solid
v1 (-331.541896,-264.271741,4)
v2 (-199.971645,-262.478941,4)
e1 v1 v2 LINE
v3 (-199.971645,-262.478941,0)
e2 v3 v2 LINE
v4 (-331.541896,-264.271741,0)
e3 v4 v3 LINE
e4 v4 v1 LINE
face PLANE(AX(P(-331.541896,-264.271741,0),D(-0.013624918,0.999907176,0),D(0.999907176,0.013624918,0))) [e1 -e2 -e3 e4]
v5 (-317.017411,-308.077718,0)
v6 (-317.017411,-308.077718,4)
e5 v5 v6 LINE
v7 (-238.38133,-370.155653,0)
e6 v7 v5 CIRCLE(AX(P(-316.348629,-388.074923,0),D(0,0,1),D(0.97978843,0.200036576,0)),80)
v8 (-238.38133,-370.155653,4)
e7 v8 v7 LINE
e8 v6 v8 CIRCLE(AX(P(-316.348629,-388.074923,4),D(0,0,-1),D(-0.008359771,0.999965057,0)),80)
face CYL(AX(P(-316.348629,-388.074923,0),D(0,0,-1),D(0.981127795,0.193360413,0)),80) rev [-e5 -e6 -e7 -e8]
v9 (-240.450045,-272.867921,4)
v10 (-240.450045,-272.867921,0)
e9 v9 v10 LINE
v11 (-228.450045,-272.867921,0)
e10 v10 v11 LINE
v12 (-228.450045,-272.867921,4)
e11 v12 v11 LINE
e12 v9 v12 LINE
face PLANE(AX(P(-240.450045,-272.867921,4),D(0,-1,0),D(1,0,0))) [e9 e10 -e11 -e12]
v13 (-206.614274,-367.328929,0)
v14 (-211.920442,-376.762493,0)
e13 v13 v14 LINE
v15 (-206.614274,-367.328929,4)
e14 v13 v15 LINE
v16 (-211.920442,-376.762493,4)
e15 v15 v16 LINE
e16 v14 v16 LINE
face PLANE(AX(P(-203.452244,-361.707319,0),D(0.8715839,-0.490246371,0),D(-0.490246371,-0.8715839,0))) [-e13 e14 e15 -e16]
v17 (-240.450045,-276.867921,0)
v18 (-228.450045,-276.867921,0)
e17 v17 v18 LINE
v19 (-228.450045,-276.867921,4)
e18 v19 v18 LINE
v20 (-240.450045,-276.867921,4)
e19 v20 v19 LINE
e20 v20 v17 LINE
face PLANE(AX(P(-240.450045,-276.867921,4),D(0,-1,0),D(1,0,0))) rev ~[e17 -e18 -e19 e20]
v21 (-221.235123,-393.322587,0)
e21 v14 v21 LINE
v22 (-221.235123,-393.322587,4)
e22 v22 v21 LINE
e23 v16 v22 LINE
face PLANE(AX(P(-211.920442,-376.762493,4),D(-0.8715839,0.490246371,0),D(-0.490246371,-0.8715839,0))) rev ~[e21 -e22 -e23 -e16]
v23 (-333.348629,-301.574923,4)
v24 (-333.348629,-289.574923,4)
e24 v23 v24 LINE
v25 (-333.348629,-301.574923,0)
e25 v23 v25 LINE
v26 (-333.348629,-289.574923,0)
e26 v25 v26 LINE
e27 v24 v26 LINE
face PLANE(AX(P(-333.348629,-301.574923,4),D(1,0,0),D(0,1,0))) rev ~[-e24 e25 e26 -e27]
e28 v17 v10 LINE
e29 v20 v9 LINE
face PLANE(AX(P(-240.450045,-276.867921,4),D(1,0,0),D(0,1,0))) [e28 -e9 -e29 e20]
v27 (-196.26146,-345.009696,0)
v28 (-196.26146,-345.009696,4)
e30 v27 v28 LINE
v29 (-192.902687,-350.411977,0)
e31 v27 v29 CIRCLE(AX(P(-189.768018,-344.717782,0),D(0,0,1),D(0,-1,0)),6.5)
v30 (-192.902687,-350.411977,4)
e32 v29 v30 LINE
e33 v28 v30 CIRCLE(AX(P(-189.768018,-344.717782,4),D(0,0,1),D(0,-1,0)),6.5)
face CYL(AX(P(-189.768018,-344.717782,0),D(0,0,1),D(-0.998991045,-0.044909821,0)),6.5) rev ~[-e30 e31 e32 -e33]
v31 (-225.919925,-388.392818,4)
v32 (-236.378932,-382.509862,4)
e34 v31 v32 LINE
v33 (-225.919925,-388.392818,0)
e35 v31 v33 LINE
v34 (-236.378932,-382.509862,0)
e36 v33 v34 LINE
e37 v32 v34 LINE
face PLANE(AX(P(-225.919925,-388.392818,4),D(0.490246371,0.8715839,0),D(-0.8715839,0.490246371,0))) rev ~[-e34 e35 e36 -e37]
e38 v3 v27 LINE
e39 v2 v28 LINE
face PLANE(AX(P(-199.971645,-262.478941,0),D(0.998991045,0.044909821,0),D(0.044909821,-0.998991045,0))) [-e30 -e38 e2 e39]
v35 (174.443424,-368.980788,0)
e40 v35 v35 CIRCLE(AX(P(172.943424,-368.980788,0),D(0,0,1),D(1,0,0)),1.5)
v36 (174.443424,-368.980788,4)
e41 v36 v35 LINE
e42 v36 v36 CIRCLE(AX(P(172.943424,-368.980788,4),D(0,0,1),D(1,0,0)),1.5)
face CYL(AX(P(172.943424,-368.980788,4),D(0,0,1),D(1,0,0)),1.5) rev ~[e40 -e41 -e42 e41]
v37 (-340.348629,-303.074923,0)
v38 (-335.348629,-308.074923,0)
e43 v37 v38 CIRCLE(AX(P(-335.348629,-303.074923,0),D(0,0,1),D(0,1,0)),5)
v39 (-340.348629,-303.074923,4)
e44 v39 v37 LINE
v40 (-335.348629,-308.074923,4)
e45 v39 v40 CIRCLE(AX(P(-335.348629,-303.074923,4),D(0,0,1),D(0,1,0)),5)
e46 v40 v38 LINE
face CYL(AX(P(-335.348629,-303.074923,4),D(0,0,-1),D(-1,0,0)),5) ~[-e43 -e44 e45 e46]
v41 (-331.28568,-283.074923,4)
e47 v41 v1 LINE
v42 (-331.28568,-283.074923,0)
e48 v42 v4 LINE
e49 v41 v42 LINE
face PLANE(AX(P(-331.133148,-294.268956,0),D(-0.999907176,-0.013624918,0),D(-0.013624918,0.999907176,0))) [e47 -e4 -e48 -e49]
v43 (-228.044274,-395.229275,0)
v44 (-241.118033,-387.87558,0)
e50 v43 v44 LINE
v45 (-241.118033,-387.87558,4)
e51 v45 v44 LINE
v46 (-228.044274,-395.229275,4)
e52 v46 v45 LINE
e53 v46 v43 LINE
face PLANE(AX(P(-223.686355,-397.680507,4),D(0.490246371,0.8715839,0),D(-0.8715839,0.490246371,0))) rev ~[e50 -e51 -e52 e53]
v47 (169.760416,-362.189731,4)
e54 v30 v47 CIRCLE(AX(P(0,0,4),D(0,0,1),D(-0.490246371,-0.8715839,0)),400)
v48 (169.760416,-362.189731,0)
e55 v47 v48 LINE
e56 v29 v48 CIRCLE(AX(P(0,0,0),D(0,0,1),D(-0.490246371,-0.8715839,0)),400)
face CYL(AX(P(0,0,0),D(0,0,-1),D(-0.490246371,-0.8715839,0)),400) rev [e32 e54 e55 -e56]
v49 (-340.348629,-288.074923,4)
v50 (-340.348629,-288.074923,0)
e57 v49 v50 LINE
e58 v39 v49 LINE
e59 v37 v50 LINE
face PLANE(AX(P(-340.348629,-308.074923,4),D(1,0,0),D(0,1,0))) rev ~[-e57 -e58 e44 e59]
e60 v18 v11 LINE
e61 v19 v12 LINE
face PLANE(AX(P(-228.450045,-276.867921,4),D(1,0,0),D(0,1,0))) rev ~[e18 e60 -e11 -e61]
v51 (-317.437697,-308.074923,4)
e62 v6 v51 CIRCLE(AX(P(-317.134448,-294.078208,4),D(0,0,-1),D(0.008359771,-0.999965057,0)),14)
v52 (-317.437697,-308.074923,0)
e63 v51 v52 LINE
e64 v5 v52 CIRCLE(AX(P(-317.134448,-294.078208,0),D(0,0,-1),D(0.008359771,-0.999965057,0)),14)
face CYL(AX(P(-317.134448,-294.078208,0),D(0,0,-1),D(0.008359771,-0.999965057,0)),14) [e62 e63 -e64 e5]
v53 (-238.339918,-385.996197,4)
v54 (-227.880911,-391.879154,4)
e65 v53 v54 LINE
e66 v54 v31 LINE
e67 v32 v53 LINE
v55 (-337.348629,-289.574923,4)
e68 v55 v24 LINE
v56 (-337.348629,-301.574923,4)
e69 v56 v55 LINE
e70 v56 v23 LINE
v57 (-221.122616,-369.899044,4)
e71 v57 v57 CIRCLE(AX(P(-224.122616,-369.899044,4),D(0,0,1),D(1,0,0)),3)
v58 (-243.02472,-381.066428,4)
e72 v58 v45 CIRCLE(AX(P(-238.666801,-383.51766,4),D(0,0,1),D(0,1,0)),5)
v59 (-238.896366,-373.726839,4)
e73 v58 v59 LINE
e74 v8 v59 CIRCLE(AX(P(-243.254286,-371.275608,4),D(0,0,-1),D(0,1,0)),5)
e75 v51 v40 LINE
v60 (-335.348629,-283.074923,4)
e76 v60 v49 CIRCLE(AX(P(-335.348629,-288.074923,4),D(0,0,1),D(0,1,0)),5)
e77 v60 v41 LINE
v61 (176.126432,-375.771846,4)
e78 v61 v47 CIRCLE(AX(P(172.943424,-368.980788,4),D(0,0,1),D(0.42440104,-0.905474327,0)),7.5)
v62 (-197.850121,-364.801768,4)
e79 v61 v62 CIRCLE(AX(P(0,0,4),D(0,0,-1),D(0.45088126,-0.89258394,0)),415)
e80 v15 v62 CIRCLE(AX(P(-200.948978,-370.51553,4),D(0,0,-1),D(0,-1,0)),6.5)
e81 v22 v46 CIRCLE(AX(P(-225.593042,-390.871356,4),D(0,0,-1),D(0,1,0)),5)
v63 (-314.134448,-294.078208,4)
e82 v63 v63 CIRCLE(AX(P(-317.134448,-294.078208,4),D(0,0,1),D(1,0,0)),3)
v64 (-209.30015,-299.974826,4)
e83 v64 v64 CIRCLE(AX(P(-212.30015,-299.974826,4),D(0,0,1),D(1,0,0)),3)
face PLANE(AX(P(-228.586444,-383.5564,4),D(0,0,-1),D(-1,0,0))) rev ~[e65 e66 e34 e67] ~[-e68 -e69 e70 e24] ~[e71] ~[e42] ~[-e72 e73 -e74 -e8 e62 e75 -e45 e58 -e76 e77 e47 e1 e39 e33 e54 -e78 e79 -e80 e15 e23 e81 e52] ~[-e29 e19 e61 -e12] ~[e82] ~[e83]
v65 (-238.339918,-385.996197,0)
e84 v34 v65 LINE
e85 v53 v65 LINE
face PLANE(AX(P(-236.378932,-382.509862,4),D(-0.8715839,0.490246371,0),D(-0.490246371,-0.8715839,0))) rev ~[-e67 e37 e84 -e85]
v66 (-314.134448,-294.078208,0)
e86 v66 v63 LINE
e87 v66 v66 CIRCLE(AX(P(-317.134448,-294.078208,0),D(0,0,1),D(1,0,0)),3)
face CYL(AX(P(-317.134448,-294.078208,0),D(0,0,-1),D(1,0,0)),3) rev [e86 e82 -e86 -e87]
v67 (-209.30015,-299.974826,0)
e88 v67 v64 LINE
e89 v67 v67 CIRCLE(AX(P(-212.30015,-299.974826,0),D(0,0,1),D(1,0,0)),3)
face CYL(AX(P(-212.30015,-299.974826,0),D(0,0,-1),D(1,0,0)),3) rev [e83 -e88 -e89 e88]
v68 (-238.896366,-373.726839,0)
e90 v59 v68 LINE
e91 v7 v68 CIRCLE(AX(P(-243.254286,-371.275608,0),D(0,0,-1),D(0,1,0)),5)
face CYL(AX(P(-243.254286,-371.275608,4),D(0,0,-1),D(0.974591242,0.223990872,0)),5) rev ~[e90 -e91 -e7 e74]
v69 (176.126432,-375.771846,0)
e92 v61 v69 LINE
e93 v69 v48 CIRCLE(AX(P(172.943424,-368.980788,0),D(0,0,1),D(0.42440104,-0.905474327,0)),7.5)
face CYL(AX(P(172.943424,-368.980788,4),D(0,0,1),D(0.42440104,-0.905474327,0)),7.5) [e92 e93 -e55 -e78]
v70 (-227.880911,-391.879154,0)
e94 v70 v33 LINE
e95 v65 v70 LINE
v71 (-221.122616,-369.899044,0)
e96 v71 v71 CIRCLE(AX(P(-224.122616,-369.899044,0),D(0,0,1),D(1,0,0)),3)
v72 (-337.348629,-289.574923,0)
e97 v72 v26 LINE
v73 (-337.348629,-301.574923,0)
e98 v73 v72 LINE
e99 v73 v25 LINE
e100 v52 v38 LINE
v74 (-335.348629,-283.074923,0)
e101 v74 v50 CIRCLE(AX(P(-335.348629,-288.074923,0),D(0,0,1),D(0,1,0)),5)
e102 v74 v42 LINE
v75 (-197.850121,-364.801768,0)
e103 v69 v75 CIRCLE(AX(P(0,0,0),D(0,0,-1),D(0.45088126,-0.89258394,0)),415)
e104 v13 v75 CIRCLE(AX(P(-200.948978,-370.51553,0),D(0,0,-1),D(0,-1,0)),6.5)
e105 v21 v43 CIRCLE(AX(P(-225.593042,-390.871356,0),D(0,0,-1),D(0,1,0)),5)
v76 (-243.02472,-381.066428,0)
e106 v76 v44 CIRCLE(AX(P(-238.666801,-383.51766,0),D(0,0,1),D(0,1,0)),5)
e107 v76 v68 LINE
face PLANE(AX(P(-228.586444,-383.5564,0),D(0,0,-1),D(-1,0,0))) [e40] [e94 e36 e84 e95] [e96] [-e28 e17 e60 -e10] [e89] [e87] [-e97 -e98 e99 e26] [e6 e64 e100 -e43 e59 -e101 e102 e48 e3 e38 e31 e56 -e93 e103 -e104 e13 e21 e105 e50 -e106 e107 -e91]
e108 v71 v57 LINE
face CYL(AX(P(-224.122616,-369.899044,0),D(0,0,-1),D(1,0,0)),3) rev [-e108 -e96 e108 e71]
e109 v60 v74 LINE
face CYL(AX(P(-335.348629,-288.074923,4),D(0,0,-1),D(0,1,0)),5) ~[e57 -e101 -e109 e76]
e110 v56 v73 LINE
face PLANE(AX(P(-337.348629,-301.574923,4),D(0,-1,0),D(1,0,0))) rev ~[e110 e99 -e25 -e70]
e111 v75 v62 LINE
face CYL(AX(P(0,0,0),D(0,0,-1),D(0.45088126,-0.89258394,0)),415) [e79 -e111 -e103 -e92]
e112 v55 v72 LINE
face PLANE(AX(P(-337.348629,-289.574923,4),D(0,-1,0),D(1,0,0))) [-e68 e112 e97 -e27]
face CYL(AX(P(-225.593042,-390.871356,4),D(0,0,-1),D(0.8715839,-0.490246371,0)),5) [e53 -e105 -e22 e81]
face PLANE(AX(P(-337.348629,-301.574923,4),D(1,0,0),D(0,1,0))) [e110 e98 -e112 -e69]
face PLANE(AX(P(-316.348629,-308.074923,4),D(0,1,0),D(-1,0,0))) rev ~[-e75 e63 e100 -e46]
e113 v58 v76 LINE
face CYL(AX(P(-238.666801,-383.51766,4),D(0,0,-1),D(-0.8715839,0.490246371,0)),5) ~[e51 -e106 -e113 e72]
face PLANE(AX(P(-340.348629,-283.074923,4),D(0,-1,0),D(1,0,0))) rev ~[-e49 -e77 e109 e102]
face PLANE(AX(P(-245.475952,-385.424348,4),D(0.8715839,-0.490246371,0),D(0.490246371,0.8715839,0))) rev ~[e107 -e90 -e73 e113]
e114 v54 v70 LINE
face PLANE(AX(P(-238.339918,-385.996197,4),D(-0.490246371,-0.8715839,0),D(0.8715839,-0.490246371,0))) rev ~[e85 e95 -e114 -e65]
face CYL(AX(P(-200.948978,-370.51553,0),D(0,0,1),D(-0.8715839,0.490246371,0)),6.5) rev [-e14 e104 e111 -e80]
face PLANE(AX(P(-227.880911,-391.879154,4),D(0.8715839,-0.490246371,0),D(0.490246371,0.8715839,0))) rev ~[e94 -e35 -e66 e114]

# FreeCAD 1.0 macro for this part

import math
import FreeCAD as App
import Part
import Sketcher

V = App.Vector


def edges_at(feature, points):
    """Names of the edges that pass closest to the given points."""
    edges = feature.Shape.Edges
    near = lambda p: min(range(len(edges)), key=lambda i: edges[i].distToShape(Part.Vertex(*p))[0])
    return sorted({f"Edge{near(p) + 1}" for p in points})

doc = App.newDocument("Part")
body = doc.addObject("PartDesign::Body", "Body")

sketch1 = doc.addObject("Sketcher::SketchObject", "Sketch")
body.addObject(sketch1)
sketch1.AttachmentSupport = (doc.XY_Plane, [""])
sketch1.MapMode = "FlatFace"
sketch1.addGeometry([
    Part.LineSegment(V(-196.1, -348.6, 0), V(-200, -262.5, 0)),
    Part.LineSegment(V(-200, -262.5, 0), V(-331.5, -264.3, 0)),
    Part.LineSegment(V(-331.5, -264.3, 0), V(-331.1, -294.3, 0)),
    Part.ArcOfCircle(Part.Circle(V(-317.1, -294.1, 0), V(0, 0, 1), 14), math.radians(-179), math.radians(-90)),
    Part.ArcOfCircle(Part.Circle(V(-316.3, -388.1, 0), V(0, 0, 1), 80), math.radians(11), math.radians(90)),
    Part.ArcOfCircle(Part.Circle(V(-224.1, -369.9, 0), V(0, 0, 1), 14), math.radians(-169), math.radians(-29)),
    Part.LineSegment(V(-211.9, -376.8, 0), V(-203.5, -361.7, 0)),
    Part.ArcOfCircle(Part.Circle(V(0, 0, 0), V(0, 0, 1), 415), math.radians(-119), math.radians(-63)),
    Part.LineSegment(V(187.1, -370.4, 0), V(180.4, -357, 0)),
    Part.ArcOfCircle(Part.Circle(V(0, 0, 0), V(0, 0, 1), 400), math.radians(-119), math.radians(-63)),
    Part.Circle(V(-224.1, -369.9, 0), V(0, 0, 1), 3),
    Part.Circle(V(-212.3, -300, 0), V(0, 0, 1), 3),
    Part.Circle(V(-317.1, -294.1, 0), V(0, 0, 1), 3),
], False)
sketch1.addConstraint([
    Sketcher.Constraint("Coincident", 0, 2, 1, 1),
    Sketcher.Constraint("Coincident", 1, 2, 2, 1),
    Sketcher.Constraint("Tangent", 2, 2, 3, 1),
    Sketcher.Constraint("Tangent", 3, 2, 4, 2),
    Sketcher.Constraint("Tangent", 4, 1, 5, 1),
    Sketcher.Constraint("Tangent", 5, 2, 6, 1),
    Sketcher.Constraint("Coincident", 6, 2, 7, 1),
    Sketcher.Constraint("Coincident", 7, 2, 8, 1),
    Sketcher.Constraint("Coincident", 8, 2, 9, 2),
    Sketcher.Constraint("Coincident", 9, 1, 0, 1),
    Sketcher.Constraint("Coincident", 7, 3, -1, 1),
    Sketcher.Constraint("Coincident", 9, 3, -1, 1),
    Sketcher.Constraint("Coincident", 10, 3, 5, 3),
    Sketcher.Constraint("Coincident", 12, 3, 3, 3),
    Sketcher.Constraint("Equal", 3, 5),
    Sketcher.Constraint("Equal", 10, 11),
    Sketcher.Constraint("Equal", 11, 12),
    Sketcher.Constraint("Perpendicular", 1, 2),
    Sketcher.Constraint("Diameter", 10, 6.0),
    Sketcher.Constraint("Radius", 3, 14.0),
    Sketcher.Constraint("Radius", 4, 80.0),
    Sketcher.Constraint("Radius", 7, 415.0),
    Sketcher.Constraint("Radius", 9, 400.0),
    Sketcher.Constraint("Distance", 2, 30.0),
    Sketcher.Constraint("DistanceY", 1, 2, 0, 2, 1.7928),
    Sketcher.Constraint("Distance", 6, 17.273351),
    Sketcher.Constraint("DistanceX", 4, 3, -1, 1, 316.348629),
    Sketcher.Constraint("DistanceX", 11, 3, -1, 1, 212.30015),
    Sketcher.Constraint("DistanceY", 0, 2, -1, 1, 262.478941),
    Sketcher.Constraint("DistanceX", 3, 2, -1, 1, 317.017411),
    Sketcher.Constraint("DistanceY", 4, 1, -1, 1, 372.60609),
    Sketcher.Constraint("DistanceX", 9, 1, -1, 1, 196.098548),
    Sketcher.Constraint("DistanceY", 10, 3, 11, 3, 69.924218),
    Sketcher.Constraint("DistanceX", 10, 3, 0, 2, 24.150971),
    Sketcher.Constraint("DistanceY", 5, 2, 7, 2, 6.340158),
    Sketcher.Constraint("DistanceX", 8, 2, 7, 2, 6.763219),
])
pad1 = doc.addObject("PartDesign::Pad", "Pad")
body.addObject(pad1)
pad1.Profile = sketch1
pad1.Length = 4

sketch2 = doc.addObject("Sketcher::SketchObject", "Sketch001")
body.addObject(sketch2)
sketch2.AttachmentSupport = (doc.XY_Plane, [""])
sketch2.MapMode = "FlatFace"
sketch2.AttachmentOffset = App.Placement(V(0, 0, 4), App.Rotation())
sketch2.addGeometry([
    Part.Circle(V(172.9, -369, 0), V(0, 0, 1), 1.5),
    Part.LineSegment(V(162.9, -362.2, 0), V(169.8, -362.2, 0)),
    Part.ArcOfCircle(Part.Circle(V(172.9, -369, 0), V(0, 0, 1), 7.5), math.radians(-65), math.radians(115)),
    Part.LineSegment(V(176.1, -375.8, 0), V(174.9, -378.5, 0)),
    Part.LineSegment(V(174.9, -378.5, 0), V(190.3, -373.5, 0)),
    Part.LineSegment(V(190.3, -373.5, 0), V(187.1, -370.4, 0)),
    Part.LineSegment(V(187.1, -370.4, 0), V(180.4, -357, 0)),
    Part.LineSegment(V(180.4, -357, 0), V(181, -354.2, 0)),
    Part.LineSegment(V(181, -354.2, 0), V(162.9, -362.2, 0)),
], False)
sketch2.addConstraint([
    Sketcher.Constraint("Coincident", 1, 2, 2, 2),
    Sketcher.Constraint("Coincident", 2, 1, 3, 1),
    Sketcher.Constraint("Coincident", 3, 2, 4, 1),
    Sketcher.Constraint("Coincident", 4, 2, 5, 1),
    Sketcher.Constraint("Coincident", 5, 2, 6, 1),
    Sketcher.Constraint("Coincident", 6, 2, 7, 1),
    Sketcher.Constraint("Coincident", 7, 2, 8, 1),
    Sketcher.Constraint("Coincident", 8, 2, 1, 1),
    Sketcher.Constraint("Horizontal", 1),
    Sketcher.Constraint("Coincident", 2, 3, 0, 3),
    Sketcher.Constraint("Diameter", 0, 3.0),
    Sketcher.Constraint("Radius", 2, 7.5),
    Sketcher.Constraint("Distance", 6, 15.0),
    Sketcher.Constraint("DistanceY", 3, 2, 4, 2, 5.000402),
    Sketcher.Constraint("DistanceX", 0, 3, 5, 2, 14.172299),
    Sketcher.Constraint("DistanceX", 8, 2, 2, 3, 10.0662),
    Sketcher.Constraint("Distance", 3, 2.987931),
    Sketcher.Constraint("DistanceX", 1, 1, 1, 2, 6.883192),
    Sketcher.Constraint("DistanceY", 0, 3, -1, 1, 368.980788),
    Sketcher.Constraint("DistanceX", -1, 1, 2, 1, 176.126432),
    Sketcher.Constraint("DistanceY", 3, 2, -1, 1, 378.475059),
    Sketcher.Constraint("DistanceX", 0, 3, 3, 2, 1.910071),
    Sketcher.Constraint("DistanceX", 3, 2, 4, 2, 15.433339),
    Sketcher.Constraint("DistanceY", 2, 1, 5, 2, 5.349511),
    Sketcher.Constraint("DistanceX", 0, 3, 6, 2, 7.40908),
    Sketcher.Constraint("DistanceY", 6, 2, 7, 2, 2.881459),
    Sketcher.Constraint("DistanceX", 1, 2, 7, 2, 11.204681),
])
pocket1 = doc.addObject("PartDesign::Pocket", "Pocket")
body.addObject(pocket1)
pocket1.Profile = sketch2
pocket1.Type = "ThroughAll"
doc.recompute()

fillet = doc.addObject("PartDesign::Fillet", "Fillet")
body.addObject(fillet)
fillet.Base = (pocket1, edges_at(pocket1, [(-203.452, -361.707, 2), (-196.099, -348.634, 2)]))
fillet.Radius = 6.5

sketch3 = doc.addObject("Sketcher::SketchObject", "Sketch002")
body.addObject(sketch3)
sketch3.AttachmentSupport = (doc.XY_Plane, [""])
sketch3.MapMode = "FlatFace"
sketch3.AttachmentOffset = App.Placement(V(0, 0, 4), App.Rotation())
sketch3.addGeometry([
    Part.LineSegment(V(-223.7, -397.7, 0), V(-211.9, -376.8, 0)),
    Part.LineSegment(V(-211.9, -376.8, 0), V(-225.4, -376.8, 0)),
    Part.LineSegment(V(-225.4, -376.8, 0), V(-238, -372.1, 0)),
    Part.LineSegment(V(-238, -372.1, 0), V(-245.5, -385.4, 0)),
    Part.LineSegment(V(-245.5, -385.4, 0), V(-223.7, -397.7, 0)),
    Part.LineSegment(V(-238.3, -386, 0), V(-236.4, -382.5, 0)),
    Part.LineSegment(V(-236.4, -382.5, 0), V(-225.9, -388.4, 0)),
    Part.LineSegment(V(-225.9, -388.4, 0), V(-227.9, -391.9, 0)),
    Part.LineSegment(V(-227.9, -391.9, 0), V(-238.3, -386, 0)),
    Part.LineSegment(V(-340.3, -308.1, 0), V(-316.3, -308.1, 0)),
    Part.LineSegment(V(-316.3, -308.1, 0), V(-331.3, -283.1, 0)),
    Part.LineSegment(V(-331.3, -283.1, 0), V(-340.3, -283.1, 0)),
    Part.LineSegment(V(-340.3, -283.1, 0), V(-340.3, -308.1, 0)),
    Part.LineSegment(V(-337.3, -301.6, 0), V(-337.3, -289.6, 0)),
    Part.LineSegment(V(-337.3, -289.6, 0), V(-333.3, -289.6, 0)),
    Part.LineSegment(V(-333.3, -289.6, 0), V(-333.3, -301.6, 0)),
    Part.LineSegment(V(-333.3, -301.6, 0), V(-337.3, -301.6, 0)),
], False)
sketch3.addConstraint([
    Sketcher.Constraint("Coincident", 0, 2, 1, 1),
    Sketcher.Constraint("Coincident", 1, 2, 2, 1),
    Sketcher.Constraint("Coincident", 2, 2, 3, 1),
    Sketcher.Constraint("Coincident", 3, 2, 4, 1),
    Sketcher.Constraint("Coincident", 4, 2, 0, 1),
    Sketcher.Constraint("Coincident", 5, 2, 6, 1),
    Sketcher.Constraint("Coincident", 6, 2, 7, 1),
    Sketcher.Constraint("Coincident", 7, 2, 8, 1),
    Sketcher.Constraint("Coincident", 8, 2, 5, 1),
    Sketcher.Constraint("Coincident", 9, 2, 10, 1),
    Sketcher.Constraint("Coincident", 10, 2, 11, 1),
    Sketcher.Constraint("Coincident", 11, 2, 12, 1),
    Sketcher.Constraint("Coincident", 12, 2, 9, 1),
    Sketcher.Constraint("Coincident", 13, 2, 14, 1),
    Sketcher.Constraint("Coincident", 14, 2, 15, 1),
    Sketcher.Constraint("Coincident", 15, 2, 16, 1),
    Sketcher.Constraint("Coincident", 16, 2, 13, 1),
    Sketcher.Constraint("Horizontal", 1),
    Sketcher.Constraint("Horizontal", 9),
    Sketcher.Constraint("Horizontal", 11),
    Sketcher.Constraint("Vertical", 12),
    Sketcher.Constraint("Vertical", 13),
    Sketcher.Constraint("Horizontal", 14),
    Sketcher.Constraint("Vertical", 15),
    Sketcher.Constraint("Horizontal", 16),
    Sketcher.Constraint("Parallel", 0, 3),
    Sketcher.Constraint("Perpendicular", 3, 4),
    Sketcher.Constraint("Perpendicular", 4, 5),
    Sketcher.Constraint("Perpendicular", 5, 6),
    Sketcher.Constraint("Perpendicular", 6, 7),
    Sketcher.Constraint("Perpendicular", 7, 8),
    Sketcher.Constraint("DistanceX", 9, 1, 9, 2, 24.0),
    Sketcher.Constraint("DistanceX", 14, 1, 14, 2, 4.0),
    Sketcher.Constraint("DistanceY", 12, 2, 12, 1, 25.0),
    Sketcher.Constraint("DistanceY", 13, 1, 13, 2, 12.0),
    Sketcher.Constraint("Distance", 0, 24.0),
    Sketcher.Constraint("Distance", 4, 25.0),
    Sketcher.Constraint("Distance", 5, 4.0),
    Sketcher.Constraint("Distance", 6, 12.0),
    Sketcher.Constraint("DistanceX", 11, 2, 13, 2, 3.0),
    Sketcher.Constraint("DistanceY", 13, 2, 11, 2, 6.5),
    Sketcher.Constraint("DistanceX", 1, 2, 1, 1, 13.453889),
    Sketcher.Constraint("DistanceX", 11, 2, 11, 1, 9.062949),
    Sketcher.Constraint("DistanceX", 2, 2, 4, 2, 14.2792),
    Sketcher.Constraint("DistanceX", 5, 2, 1, 2, 11.004601),
    Sketcher.Constraint("DistanceY", 8, 2, 2, 2, 13.924201),
    Sketcher.Constraint("DistanceX", 9, 2, 1, 2, 90.974298),
    Sketcher.Constraint("Distance", 3, 15.319639),
    Sketcher.Constraint("DistanceX", 0, 2, -1, 1, 211.920442),
    Sketcher.Constraint("DistanceY", 5, 2, -1, 1, 382.509862),
    Sketcher.Constraint("DistanceY", 5, 2, 9, 2, 74.434939),
])
pad2 = doc.addObject("PartDesign::Pad", "Pad001")
body.addObject(pad2)
pad2.Profile = sketch3
pad2.Length = 4
pad2.Reversed = True
doc.recompute()

fillet2 = doc.addObject("PartDesign::Fillet", "Fillet001")
body.addObject(fillet2)
fillet2.Base = (pad2, edges_at(pad2, [
    (-340.349, -308.075, 2),
    (-340.349, -283.075, 2),
    (-223.686, -397.681, 2),
    (-245.476, -385.424, 2),
    (-237.966, -372.072, 2),
]))
fillet2.Radius = 5

sketch4 = doc.addObject("Sketcher::SketchObject", "Sketch003")
body.addObject(sketch4)
sketch4.AttachmentSupport = (doc.XY_Plane, [""])
sketch4.MapMode = "FlatFace"
sketch4.AttachmentOffset = App.Placement(V(0, 0, 4), App.Rotation())
sketch4.addGeometry([
    Part.LineSegment(V(-240.5, -272.9, 0), V(-240.5, -276.9, 0)),
    Part.LineSegment(V(-240.5, -276.9, 0), V(-228.5, -276.9, 0)),
    Part.LineSegment(V(-228.5, -276.9, 0), V(-228.5, -272.9, 0)),
    Part.LineSegment(V(-228.5, -272.9, 0), V(-240.5, -272.9, 0)),
], False)
sketch4.addConstraint([
    Sketcher.Constraint("Coincident", 0, 2, 1, 1),
    Sketcher.Constraint("Coincident", 1, 2, 2, 1),
    Sketcher.Constraint("Coincident", 2, 2, 3, 1),
    Sketcher.Constraint("Coincident", 3, 2, 0, 1),
    Sketcher.Constraint("Vertical", 0),
    Sketcher.Constraint("Horizontal", 1),
    Sketcher.Constraint("Vertical", 2),
    Sketcher.Constraint("Horizontal", 3),
    Sketcher.Constraint("DistanceX", 1, 1, 1, 2, 12.0),
    Sketcher.Constraint("DistanceY", 0, 2, 0, 1, 4.0),
    Sketcher.Constraint("DistanceY", 0, 2, -1, 1, 276.867921),
    Sketcher.Constraint("DistanceX", 0, 2, -1, 1, 240.450045),
])
pocket2 = doc.addObject("PartDesign::Pocket", "Pocket001")
body.addObject(pocket2)
pocket2.Profile = sketch4
pocket2.Length = 4

doc.recompute()
